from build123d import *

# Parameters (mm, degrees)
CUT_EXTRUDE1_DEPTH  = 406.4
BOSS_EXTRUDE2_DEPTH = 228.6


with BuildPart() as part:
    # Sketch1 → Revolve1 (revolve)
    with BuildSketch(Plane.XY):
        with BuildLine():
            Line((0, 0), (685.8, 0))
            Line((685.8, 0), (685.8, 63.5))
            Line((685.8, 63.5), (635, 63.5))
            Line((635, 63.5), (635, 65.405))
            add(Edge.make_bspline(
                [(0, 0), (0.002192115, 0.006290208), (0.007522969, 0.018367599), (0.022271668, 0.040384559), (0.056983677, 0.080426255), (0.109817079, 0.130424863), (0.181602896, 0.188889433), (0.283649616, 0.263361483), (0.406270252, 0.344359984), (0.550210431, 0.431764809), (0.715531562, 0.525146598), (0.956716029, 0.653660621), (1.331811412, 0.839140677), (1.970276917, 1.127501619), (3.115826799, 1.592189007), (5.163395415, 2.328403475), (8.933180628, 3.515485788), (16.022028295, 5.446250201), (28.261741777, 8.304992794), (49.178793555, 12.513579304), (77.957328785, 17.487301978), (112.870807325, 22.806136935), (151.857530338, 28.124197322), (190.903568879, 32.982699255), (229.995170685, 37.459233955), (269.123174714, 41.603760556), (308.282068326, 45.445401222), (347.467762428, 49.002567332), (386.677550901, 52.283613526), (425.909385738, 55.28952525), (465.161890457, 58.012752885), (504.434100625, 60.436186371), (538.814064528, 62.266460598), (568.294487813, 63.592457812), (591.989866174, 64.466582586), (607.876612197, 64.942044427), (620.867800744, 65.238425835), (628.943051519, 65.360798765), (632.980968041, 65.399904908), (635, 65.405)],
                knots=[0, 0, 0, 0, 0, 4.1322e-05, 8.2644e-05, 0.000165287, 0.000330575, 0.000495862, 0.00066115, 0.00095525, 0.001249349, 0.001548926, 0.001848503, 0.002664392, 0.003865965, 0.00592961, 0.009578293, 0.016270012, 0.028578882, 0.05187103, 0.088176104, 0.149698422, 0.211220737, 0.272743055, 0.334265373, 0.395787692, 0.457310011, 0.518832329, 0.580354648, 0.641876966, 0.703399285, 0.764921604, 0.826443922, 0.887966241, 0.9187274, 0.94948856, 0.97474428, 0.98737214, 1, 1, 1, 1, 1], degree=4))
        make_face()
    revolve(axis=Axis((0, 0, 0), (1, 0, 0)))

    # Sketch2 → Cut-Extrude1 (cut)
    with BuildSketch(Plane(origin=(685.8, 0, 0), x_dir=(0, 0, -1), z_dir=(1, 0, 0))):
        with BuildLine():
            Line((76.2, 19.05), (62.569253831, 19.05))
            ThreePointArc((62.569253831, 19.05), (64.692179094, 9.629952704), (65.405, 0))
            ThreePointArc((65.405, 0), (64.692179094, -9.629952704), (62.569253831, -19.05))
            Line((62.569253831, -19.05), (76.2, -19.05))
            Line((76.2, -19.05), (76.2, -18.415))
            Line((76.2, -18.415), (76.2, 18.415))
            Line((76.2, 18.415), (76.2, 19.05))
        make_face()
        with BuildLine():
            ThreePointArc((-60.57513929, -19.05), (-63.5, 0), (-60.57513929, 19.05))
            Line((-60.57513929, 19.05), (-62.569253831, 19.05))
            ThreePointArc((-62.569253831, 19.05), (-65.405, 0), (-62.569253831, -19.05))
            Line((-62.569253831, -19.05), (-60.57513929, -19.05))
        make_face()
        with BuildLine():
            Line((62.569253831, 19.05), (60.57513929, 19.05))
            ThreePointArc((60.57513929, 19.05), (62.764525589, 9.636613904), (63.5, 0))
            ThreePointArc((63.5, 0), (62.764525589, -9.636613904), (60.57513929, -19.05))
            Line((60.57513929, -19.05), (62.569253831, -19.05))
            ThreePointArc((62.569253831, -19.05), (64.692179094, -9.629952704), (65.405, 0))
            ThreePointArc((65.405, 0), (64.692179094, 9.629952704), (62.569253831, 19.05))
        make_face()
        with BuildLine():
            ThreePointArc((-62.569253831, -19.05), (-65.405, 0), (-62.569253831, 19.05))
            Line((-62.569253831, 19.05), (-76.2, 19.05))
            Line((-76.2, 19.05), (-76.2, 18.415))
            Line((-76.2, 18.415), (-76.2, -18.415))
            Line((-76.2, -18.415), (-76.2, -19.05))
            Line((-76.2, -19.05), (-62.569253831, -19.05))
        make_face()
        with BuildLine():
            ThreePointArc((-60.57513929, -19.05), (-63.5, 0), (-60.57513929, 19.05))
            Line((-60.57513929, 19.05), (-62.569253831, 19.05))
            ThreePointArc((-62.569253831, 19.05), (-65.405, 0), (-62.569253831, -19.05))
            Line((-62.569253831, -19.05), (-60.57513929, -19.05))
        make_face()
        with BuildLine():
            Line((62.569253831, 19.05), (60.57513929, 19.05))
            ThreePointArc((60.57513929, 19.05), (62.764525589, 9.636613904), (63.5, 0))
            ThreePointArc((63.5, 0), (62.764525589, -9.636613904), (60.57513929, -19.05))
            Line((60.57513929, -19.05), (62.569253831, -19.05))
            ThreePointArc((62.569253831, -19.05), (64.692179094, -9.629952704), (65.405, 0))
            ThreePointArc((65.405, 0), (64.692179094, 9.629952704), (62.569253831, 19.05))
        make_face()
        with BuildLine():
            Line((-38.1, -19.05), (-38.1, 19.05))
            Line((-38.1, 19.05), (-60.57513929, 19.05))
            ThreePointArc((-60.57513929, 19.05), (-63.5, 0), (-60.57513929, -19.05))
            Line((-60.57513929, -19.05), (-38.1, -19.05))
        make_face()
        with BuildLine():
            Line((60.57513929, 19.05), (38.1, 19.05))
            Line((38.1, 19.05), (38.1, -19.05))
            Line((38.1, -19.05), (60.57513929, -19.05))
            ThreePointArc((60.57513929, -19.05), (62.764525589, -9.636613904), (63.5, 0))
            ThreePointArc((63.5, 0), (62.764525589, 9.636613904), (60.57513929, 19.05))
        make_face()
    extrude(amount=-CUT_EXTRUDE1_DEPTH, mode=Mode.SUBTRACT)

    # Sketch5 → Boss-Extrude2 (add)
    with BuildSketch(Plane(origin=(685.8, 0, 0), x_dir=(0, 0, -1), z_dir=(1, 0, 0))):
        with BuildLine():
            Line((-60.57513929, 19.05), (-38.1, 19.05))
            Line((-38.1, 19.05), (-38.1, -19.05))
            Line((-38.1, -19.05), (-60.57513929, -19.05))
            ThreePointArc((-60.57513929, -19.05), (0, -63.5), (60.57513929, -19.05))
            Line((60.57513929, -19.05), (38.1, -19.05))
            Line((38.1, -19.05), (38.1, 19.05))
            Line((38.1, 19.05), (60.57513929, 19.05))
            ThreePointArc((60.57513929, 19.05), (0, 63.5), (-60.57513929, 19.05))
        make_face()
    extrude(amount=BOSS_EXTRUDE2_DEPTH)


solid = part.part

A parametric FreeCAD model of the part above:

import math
import FreeCAD as App
import Part
import Sketcher
from FreeCAD import Vector
Q = App.Units.Quantity

doc = App.newDocument("Part")
body = doc.addObject("PartDesign::Body", "Body")

sketch1 = doc.addObject("Sketcher::SketchObject", "Sketch")
body.addObject(sketch1)
sketch1.AttachmentSupport = (doc.XY_Plane, [""])
sketch1.MapMode = "FlatFace"
sketch1.addGeometry(Part.LineSegment(Vector(0, 0, 0), Vector(685.8, 0, 0)), False)
sketch1.addGeometry(Part.LineSegment(Vector(685.8, 0, 0), Vector(685.8, 63.5, 0)), False)
sketch1.addGeometry(Part.LineSegment(Vector(685.8, 63.5, 0), Vector(635, 63.5, 0)), False)
sketch1.addGeometry(Part.LineSegment(Vector(635, 63.5, 0), Vector(635, 65.405, 0)), False)
sketch1.addGeometry(Part.BSplineCurve([Vector(0, 0, 0), Vector(0.002192, 0.00629, 0), Vector(0.007523, 0.018368, 0), Vector(0.022272, 0.040385, 0), Vector(0.056984, 0.080426, 0), Vector(0.109817, 0.130425, 0), Vector(0.181603, 0.188889, 0), Vector(0.28365, 0.263361, 0), Vector(0.40627, 0.34436, 0), Vector(0.55021, 0.431765, 0), Vector(0.715532, 0.525147, 0), Vector(0.956716, 0.653661, 0), Vector(1.331811, 0.839141, 0), Vector(1.970277, 1.127502, 0), Vector(3.115827, 1.592189, 0), Vector(5.163395, 2.328403, 0), Vector(8.933181, 3.515486, 0), Vector(16.022028, 5.44625, 0), Vector(28.261742, 8.304993, 0), Vector(49.178794, 12.513579, 0), Vector(77.957329, 17.487302, 0), Vector(112.870807, 22.806137, 0), Vector(151.85753, 28.124197, 0), Vector(190.903569, 32.982699, 0), Vector(229.995171, 37.459234, 0), Vector(269.123175, 41.603761, 0), Vector(308.282068, 45.445401, 0), Vector(347.467762, 49.002567, 0), Vector(386.677551, 52.283614, 0), Vector(425.909386, 55.289525, 0), Vector(465.16189, 58.012753, 0), Vector(504.434101, 60.436186, 0), Vector(538.814065, 62.266461, 0), Vector(568.294488, 63.592458, 0), Vector(591.989866, 64.466583, 0), Vector(607.876612, 64.942044, 0), Vector(620.867801, 65.238426, 0), Vector(628.943052, 65.360799, 0), Vector(632.980968, 65.399905, 0), Vector(635, 65.405, 0)], [5, 1, 1, 1, 1, 1, 1, 1, 1, 1, 1, 1, 1, 1, 1, 1, 1, 1, 1, 1, 1, 1, 1, 1, 1, 1, 1, 1, 1, 1, 1, 1, 1, 1, 1, 1, 5], [0, 0.000041322, 0.000082644, 0.000165287, 0.000330575, 0.000495862, 0.00066115, 0.00095525, 0.001249349, 0.001548926, 0.001848503, 0.002664392, 0.003865965, 0.00592961, 0.009578293, 0.016270012, 0.028578882, 0.05187103, 0.088176104, 0.149698422, 0.211220737, 0.272743055, 0.334265373, 0.395787692, 0.457310011, 0.518832329, 0.580354648, 0.641876966, 0.703399285, 0.764921604, 0.826443922, 0.887966241, 0.9187274, 0.94948856, 0.97474428, 0.98737214, 1], False, 4, [1, 1, 1, 1, 1, 1, 1, 1, 1, 1, 1, 1, 1, 1, 1, 1, 1, 1, 1, 1, 1, 1, 1, 1, 1, 1, 1, 1, 1, 1, 1, 1, 1, 1, 1, 1, 1, 1, 1, 1], False), False)
sketch1.addConstraint(Sketcher.Constraint("Block", 4))
sketch1.addConstraint(Sketcher.Constraint("Coincident", 0, 2, 1, 1))
sketch1.addConstraint(Sketcher.Constraint("Coincident", 1, 2, 2, 1))
sketch1.addConstraint(Sketcher.Constraint("Coincident", 2, 2, 3, 1))
sketch1.addConstraint(Sketcher.Constraint("Coincident", 3, 2, 4, 2))
sketch1.addConstraint(Sketcher.Constraint("Coincident", 4, 1, 0, 1))
sketch1.addConstraint(Sketcher.Constraint("Horizontal", 0))
sketch1.addConstraint(Sketcher.Constraint("Vertical", 1))
sketch1.addConstraint(Sketcher.Constraint("Horizontal", 2))
sketch1.addConstraint(Sketcher.Constraint("Vertical", 3))
sketch1.addConstraint(Sketcher.Constraint("DistanceX", 0, 1, 0, 2, Q("27 in")))
sketch1.addConstraint(Sketcher.Constraint("DistanceY", 1, 1, 1, 2, Q("2.5 in")))
revolution = doc.addObject("PartDesign::Revolution", "Revolution")
body.addObject(revolution)
revolution.Profile = sketch1
revolution.ReferenceAxis = (sketch1, ["H_Axis"])
revolution.Angle = 360

sketch2 = doc.addObject("Sketcher::SketchObject", "Sketch001")
body.addObject(sketch2)
sketch2.AttachmentSupport = (doc.YZ_Plane, [""])
sketch2.MapMode = "FlatFace"
sketch2.AttachmentOffset = App.Placement(Vector(0, 0, 27 * 25.4), App.Rotation())
sketch2.addGeometry(Part.LineSegment(Vector(-19, -76, 0), Vector(19, -76, 0)), False)
sketch2.addGeometry(Part.LineSegment(Vector(19, -76, 0), Vector(19, -38, 0)), False)
sketch2.addGeometry(Part.LineSegment(Vector(19, -38, 0), Vector(-19, -38, 0)), False)
sketch2.addGeometry(Part.LineSegment(Vector(-19, -38, 0), Vector(-19, -76, 0)), False)
sketch2.addGeometry(Part.LineSegment(Vector(19, 76, 0), Vector(-19, 76, 0)), False)
sketch2.addGeometry(Part.LineSegment(Vector(-19, 76, 0), Vector(-19, 38, 0)), False)
sketch2.addGeometry(Part.LineSegment(Vector(-19, 38, 0), Vector(19, 38, 0)), False)
sketch2.addGeometry(Part.LineSegment(Vector(19, 38, 0), Vector(19, 76, 0)), False)
sketch2.addConstraint(Sketcher.Constraint("Coincident", 0, 2, 1, 1))
sketch2.addConstraint(Sketcher.Constraint("Coincident", 1, 2, 2, 1))
sketch2.addConstraint(Sketcher.Constraint("Coincident", 2, 2, 3, 1))
sketch2.addConstraint(Sketcher.Constraint("Coincident", 3, 2, 0, 1))
sketch2.addConstraint(Sketcher.Constraint("Coincident", 4, 2, 5, 1))
sketch2.addConstraint(Sketcher.Constraint("Coincident", 5, 2, 6, 1))
sketch2.addConstraint(Sketcher.Constraint("Coincident", 6, 2, 7, 1))
sketch2.addConstraint(Sketcher.Constraint("Coincident", 7, 2, 4, 1))
sketch2.addConstraint(Sketcher.Constraint("Horizontal", 0))
sketch2.addConstraint(Sketcher.Constraint("Vertical", 1))
sketch2.addConstraint(Sketcher.Constraint("Horizontal", 2))
sketch2.addConstraint(Sketcher.Constraint("Vertical", 3))
sketch2.addConstraint(Sketcher.Constraint("Horizontal", 4))
sketch2.addConstraint(Sketcher.Constraint("Vertical", 5))
sketch2.addConstraint(Sketcher.Constraint("Horizontal", 6))
sketch2.addConstraint(Sketcher.Constraint("Vertical", 7))
sketch2.addConstraint(Sketcher.Constraint("Symmetric", 0, 2, 4, 2, -1, 1))
sketch2.addConstraint(Sketcher.Constraint("Symmetric", 2, 2, 6, 2, -1, 1))
sketch2.addConstraint(Sketcher.Constraint("Vertical", 3, 2, 4, 2))
sketch2.addConstraint(Sketcher.Constraint("Equal", 6, 1))
sketch2.addConstraint(Sketcher.Constraint("DistanceX", 0, 1, 0, 2, Q("1.5 in")))
sketch2.addConstraint(Sketcher.Constraint("DistanceY", 0, 2, -1, 1, Q("3 in")))
pocket1 = doc.addObject("PartDesign::Pocket", "Pocket")
body.addObject(pocket1)
pocket1.Profile = sketch2
pocket1.Length = Q("16 in")

sketch3 = doc.addObject("Sketcher::SketchObject", "Sketch002")
body.addObject(sketch3)
sketch3.AttachmentSupport = (doc.YZ_Plane, [""])
sketch3.MapMode = "FlatFace"
sketch3.AttachmentOffset = App.Placement(Vector(0, 0, 27 * 25.4), App.Rotation())
sketch3.addGeometry(Part.LineSegment(Vector(19, 61, 0), Vector(19, 38, 0)), False)
sketch3.addGeometry(Part.LineSegment(Vector(19, 38, 0), Vector(-19, 38, 0)), False)
sketch3.addGeometry(Part.LineSegment(Vector(-19, 38, 0), Vector(-19, 61, 0)), False)
sketch3.addGeometry(Part.ArcOfCircle(Part.Circle(Vector(0, 0, 0), Vector(0, 0, 1), 64), math.radians(107), math.radians(253)), False)
sketch3.addGeometry(Part.LineSegment(Vector(-19, -61, 0), Vector(-19, -38, 0)), False)
sketch3.addGeometry(Part.LineSegment(Vector(-19, -38, 0), Vector(19, -38, 0)), False)
sketch3.addGeometry(Part.LineSegment(Vector(19, -38, 0), Vector(19, -61, 0)), False)
sketch3.addGeometry(Part.ArcOfCircle(Part.Circle(Vector(0, 0, 0), Vector(0, 0, 1), 64), math.radians(-73), math.radians(73)), False)
sketch3.addConstraint(Sketcher.Constraint("Coincident", 0, 2, 1, 1))
sketch3.addConstraint(Sketcher.Constraint("Coincident", 1, 2, 2, 1))
sketch3.addConstraint(Sketcher.Constraint("Coincident", 2, 2, 3, 1))
sketch3.addConstraint(Sketcher.Constraint("Coincident", 3, 2, 4, 1))
sketch3.addConstraint(Sketcher.Constraint("Coincident", 4, 2, 5, 1))
sketch3.addConstraint(Sketcher.Constraint("Coincident", 5, 2, 6, 1))
sketch3.addConstraint(Sketcher.Constraint("Coincident", 6, 2, 7, 1))
sketch3.addConstraint(Sketcher.Constraint("Coincident", 7, 2, 0, 1))
sketch3.addConstraint(Sketcher.Constraint("Vertical", 0))
sketch3.addConstraint(Sketcher.Constraint("Horizontal", 1))
sketch3.addConstraint(Sketcher.Constraint("Vertical", 2))
sketch3.addConstraint(Sketcher.Constraint("Vertical", 4))
sketch3.addConstraint(Sketcher.Constraint("Horizontal", 5))
sketch3.addConstraint(Sketcher.Constraint("Vertical", 6))
sketch3.addConstraint(Sketcher.Constraint("Coincident", 3, 3, -1, 1))
sketch3.addConstraint(Sketcher.Constraint("Coincident", 7, 3, -1, 1))
sketch3.addConstraint(Sketcher.Constraint("Equal", 3, 7))
sketch3.addConstraint(Sketcher.Constraint("Symmetric", 0, 2, 4, 2, -1, 1))
sketch3.addConstraint(Sketcher.Constraint("Horizontal", 3, 2, 6, 2))
sketch3.addConstraint(Sketcher.Constraint("Horizontal", 2, 2, 7, 2))
sketch3.addConstraint(Sketcher.Constraint("Radius", 3, Q("2.5 in")))
sketch3.addConstraint(Sketcher.Constraint("DistanceX", 1, 2, 1, 1, Q("1.5 in")))
sketch3.addConstraint(Sketcher.Constraint("DistanceY", 4, 2, 1, 2, Q("3 in")))
pad1 = doc.addObject("PartDesign::Pad", "Pad")
body.addObject(pad1)
pad1.Profile = sketch3
pad1.Length = Q("9 in")

doc.recompute()
